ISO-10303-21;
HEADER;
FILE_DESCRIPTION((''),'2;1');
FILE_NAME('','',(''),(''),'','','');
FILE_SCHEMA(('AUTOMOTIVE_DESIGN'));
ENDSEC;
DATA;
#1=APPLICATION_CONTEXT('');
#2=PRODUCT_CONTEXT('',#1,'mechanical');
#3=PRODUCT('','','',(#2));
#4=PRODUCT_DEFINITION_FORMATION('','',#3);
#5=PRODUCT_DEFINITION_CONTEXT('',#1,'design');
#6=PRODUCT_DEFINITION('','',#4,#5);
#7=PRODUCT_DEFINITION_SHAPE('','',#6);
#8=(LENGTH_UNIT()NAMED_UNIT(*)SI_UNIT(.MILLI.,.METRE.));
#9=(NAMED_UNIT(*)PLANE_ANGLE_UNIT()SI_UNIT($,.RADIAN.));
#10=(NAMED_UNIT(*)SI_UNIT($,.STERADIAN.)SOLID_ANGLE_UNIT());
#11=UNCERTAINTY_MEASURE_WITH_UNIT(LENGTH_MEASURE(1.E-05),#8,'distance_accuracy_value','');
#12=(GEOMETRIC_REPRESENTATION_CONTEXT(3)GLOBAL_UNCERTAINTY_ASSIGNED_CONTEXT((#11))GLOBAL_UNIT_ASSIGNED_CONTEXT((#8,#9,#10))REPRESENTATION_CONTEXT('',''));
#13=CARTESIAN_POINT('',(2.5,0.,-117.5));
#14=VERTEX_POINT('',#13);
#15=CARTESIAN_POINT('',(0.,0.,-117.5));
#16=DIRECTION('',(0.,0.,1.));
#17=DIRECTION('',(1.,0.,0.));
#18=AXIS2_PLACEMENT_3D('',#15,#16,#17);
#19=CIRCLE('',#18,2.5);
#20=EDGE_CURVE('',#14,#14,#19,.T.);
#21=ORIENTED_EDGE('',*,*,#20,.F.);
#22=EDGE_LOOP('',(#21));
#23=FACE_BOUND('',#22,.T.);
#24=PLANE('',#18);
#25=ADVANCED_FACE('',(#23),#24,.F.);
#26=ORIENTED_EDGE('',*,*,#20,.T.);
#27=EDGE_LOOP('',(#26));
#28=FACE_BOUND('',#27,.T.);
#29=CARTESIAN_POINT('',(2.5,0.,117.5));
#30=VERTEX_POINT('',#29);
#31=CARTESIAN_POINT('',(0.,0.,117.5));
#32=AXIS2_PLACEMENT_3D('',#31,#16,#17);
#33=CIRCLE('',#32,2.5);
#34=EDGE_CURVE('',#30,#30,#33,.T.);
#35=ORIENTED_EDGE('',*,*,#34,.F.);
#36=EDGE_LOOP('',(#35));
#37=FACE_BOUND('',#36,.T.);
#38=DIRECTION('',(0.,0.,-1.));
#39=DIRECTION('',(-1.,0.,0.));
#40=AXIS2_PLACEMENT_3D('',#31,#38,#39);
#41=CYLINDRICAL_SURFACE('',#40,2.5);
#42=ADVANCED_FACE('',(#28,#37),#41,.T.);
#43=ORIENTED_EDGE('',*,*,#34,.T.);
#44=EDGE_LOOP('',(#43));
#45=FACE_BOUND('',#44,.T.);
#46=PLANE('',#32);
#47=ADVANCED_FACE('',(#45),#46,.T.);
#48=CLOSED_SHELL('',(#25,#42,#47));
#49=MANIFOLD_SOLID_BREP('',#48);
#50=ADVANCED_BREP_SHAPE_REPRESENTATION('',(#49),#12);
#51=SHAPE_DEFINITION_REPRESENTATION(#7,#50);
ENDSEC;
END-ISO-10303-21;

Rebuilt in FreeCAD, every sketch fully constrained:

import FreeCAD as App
import Part
import Sketcher
from FreeCAD import Vector
Q = App.Units.Quantity

doc = App.newDocument("Part")
body = doc.addObject("PartDesign::Body", "Body")

# Sketch on XY plane
sketch1 = body.newObject("Sketcher::SketchObject", "Sketch")
sketch1.AttachmentSupport = (doc.getObject("XY_Plane"), [""])
sketch1.MapMode = "FlatFace"
sketch1.addGeometry(Part.Circle(Vector(0, 0, 0), Vector(0, 0, 1), 2.5), False)
sketch1.addConstraint(Sketcher.Constraint("Coincident", 0, 3, -1, 1))
sketch1.addConstraint(Sketcher.Constraint("Diameter", 0, Q("5 mm")))
pad1 = body.newObject("PartDesign::Pad", "Pad")
pad1.Profile = sketch1
pad1.Length = 235
pad1.Midplane = True

doc.recompute()
